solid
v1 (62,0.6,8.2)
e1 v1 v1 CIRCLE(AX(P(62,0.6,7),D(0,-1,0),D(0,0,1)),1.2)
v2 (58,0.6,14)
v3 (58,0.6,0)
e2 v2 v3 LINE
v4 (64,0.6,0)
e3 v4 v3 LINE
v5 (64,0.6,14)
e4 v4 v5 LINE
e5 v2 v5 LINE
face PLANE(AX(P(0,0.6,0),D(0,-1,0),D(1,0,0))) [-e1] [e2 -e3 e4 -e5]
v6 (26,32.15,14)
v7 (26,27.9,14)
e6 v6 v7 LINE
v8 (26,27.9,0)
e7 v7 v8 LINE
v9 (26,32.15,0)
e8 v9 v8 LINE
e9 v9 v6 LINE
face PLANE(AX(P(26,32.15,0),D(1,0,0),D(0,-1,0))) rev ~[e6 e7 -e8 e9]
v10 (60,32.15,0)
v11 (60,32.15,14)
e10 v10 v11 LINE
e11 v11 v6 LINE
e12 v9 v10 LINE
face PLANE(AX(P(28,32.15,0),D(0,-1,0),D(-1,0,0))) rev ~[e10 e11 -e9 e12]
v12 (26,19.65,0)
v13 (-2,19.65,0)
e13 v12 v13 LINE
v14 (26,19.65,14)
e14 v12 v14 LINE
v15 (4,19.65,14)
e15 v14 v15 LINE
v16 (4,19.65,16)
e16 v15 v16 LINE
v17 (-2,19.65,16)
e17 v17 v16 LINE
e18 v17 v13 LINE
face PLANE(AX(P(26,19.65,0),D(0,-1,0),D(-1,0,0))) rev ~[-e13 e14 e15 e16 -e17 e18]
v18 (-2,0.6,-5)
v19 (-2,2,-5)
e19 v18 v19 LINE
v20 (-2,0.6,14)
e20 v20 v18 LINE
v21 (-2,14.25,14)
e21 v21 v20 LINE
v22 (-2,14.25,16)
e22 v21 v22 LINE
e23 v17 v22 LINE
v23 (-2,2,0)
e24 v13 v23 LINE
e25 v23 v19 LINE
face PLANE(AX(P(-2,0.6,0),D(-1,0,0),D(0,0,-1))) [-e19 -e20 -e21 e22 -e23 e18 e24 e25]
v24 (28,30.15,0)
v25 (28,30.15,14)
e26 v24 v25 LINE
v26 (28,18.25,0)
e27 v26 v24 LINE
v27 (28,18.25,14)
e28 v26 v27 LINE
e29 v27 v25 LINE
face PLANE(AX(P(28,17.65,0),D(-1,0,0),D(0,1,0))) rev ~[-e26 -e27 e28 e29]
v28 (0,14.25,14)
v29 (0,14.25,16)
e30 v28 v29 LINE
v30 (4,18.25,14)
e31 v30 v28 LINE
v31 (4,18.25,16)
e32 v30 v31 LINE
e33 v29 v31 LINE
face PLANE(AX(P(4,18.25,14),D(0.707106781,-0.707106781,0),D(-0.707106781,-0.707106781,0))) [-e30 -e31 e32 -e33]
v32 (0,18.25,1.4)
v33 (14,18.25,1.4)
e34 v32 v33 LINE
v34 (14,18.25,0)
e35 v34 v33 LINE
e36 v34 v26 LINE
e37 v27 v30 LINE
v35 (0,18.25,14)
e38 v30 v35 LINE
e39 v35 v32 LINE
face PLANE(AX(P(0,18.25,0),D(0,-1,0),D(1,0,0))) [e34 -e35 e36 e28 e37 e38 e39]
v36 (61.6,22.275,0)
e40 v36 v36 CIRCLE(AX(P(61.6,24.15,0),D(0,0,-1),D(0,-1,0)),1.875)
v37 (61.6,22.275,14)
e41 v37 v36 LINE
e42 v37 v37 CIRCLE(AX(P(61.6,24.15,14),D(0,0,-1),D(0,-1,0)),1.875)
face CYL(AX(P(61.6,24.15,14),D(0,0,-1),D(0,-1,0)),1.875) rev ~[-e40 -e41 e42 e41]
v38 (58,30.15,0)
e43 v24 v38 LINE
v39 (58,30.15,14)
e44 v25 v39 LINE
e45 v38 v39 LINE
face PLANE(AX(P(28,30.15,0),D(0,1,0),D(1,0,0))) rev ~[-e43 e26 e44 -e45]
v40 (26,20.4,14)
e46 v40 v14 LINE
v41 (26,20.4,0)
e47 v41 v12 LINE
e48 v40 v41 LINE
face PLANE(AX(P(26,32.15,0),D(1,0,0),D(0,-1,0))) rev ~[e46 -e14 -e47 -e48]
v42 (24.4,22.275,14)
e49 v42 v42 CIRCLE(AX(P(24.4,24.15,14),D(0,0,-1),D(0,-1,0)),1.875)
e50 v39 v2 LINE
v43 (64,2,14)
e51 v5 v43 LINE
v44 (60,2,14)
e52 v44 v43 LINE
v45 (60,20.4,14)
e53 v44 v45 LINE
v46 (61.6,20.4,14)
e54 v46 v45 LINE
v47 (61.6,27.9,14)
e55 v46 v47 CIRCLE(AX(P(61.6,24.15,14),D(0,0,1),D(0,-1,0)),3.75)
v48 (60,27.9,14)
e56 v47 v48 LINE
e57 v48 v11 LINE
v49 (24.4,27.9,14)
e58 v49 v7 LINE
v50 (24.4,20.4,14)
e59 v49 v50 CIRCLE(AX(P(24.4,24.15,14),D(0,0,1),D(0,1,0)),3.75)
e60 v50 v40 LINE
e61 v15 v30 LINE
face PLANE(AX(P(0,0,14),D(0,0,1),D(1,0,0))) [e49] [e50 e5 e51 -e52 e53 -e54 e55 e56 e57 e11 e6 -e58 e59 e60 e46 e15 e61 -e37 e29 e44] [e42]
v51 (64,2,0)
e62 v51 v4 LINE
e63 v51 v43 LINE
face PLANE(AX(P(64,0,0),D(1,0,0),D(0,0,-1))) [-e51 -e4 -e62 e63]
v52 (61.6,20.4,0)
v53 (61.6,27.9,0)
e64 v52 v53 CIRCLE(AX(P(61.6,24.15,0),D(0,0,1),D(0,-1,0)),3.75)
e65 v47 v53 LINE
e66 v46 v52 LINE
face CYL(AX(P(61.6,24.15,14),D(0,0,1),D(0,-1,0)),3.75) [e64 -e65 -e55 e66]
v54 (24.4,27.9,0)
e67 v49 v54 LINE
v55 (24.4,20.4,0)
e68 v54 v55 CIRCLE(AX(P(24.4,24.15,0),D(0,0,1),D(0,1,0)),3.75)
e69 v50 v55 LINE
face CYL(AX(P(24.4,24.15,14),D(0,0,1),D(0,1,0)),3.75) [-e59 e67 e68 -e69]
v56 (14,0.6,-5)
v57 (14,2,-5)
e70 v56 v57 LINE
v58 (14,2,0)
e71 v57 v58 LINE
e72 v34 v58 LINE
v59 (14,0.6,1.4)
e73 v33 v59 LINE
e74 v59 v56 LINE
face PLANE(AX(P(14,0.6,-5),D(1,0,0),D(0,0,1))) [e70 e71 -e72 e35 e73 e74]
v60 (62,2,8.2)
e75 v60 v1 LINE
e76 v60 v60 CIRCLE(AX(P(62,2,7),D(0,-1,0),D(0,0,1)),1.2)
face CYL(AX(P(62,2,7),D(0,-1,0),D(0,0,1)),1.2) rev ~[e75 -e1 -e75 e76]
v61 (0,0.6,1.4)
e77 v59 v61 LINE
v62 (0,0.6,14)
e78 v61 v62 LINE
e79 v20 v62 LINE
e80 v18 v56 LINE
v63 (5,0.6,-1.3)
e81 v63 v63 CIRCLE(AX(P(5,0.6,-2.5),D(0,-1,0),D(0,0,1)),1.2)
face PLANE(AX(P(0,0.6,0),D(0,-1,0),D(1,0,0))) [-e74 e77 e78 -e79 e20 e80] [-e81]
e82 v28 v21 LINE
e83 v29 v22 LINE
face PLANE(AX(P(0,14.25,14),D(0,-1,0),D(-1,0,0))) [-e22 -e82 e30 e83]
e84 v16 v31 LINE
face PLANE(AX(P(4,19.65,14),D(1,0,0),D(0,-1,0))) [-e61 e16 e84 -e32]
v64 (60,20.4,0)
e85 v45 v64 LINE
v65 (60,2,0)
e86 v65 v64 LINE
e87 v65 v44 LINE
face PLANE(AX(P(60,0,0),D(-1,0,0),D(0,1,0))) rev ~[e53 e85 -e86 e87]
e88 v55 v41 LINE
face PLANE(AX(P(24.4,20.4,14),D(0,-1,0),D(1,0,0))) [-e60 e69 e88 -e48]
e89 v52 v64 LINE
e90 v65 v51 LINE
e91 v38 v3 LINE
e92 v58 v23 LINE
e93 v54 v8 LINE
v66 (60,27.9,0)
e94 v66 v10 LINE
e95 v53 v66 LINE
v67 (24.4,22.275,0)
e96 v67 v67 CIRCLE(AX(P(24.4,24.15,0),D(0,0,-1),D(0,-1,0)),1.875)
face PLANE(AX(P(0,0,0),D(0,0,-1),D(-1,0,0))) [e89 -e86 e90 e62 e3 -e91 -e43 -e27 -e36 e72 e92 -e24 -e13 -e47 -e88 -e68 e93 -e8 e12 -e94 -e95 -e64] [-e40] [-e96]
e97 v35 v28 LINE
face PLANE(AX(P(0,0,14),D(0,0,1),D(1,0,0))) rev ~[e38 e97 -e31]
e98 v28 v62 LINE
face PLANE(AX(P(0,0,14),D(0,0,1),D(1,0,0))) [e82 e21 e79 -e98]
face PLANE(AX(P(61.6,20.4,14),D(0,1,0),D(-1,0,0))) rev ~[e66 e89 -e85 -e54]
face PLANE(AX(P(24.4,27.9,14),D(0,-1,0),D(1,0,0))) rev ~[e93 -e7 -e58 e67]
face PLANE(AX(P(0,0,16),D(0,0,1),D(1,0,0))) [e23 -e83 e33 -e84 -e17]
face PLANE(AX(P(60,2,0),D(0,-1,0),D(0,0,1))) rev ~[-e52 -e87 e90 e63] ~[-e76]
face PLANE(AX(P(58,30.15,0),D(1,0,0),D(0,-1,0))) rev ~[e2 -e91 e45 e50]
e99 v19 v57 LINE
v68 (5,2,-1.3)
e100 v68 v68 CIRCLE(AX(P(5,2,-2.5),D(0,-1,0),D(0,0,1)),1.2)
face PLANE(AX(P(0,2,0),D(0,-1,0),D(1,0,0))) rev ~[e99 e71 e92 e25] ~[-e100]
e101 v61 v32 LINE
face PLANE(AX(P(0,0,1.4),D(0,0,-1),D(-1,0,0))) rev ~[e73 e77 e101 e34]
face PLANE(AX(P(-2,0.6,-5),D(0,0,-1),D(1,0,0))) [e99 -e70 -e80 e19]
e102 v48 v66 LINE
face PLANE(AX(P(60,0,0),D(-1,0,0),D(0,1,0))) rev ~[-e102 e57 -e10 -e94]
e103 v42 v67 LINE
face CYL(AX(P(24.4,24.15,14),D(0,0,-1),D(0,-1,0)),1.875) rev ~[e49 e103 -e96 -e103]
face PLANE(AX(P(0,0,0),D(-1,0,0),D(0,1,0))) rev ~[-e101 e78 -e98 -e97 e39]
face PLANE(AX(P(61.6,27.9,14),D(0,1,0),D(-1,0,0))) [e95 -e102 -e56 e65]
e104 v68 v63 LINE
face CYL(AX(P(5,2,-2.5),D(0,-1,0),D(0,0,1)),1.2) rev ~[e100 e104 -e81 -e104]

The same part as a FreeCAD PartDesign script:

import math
import FreeCAD as App
import Part
import Sketcher
Q = App.Units.Quantity


def add_polygon(sketch, points):
    """Adds a closed chain of lines whose ends are joined by coincident constraints."""
    first, n = sketch.GeometryCount, len(points)
    for a, b in zip(points, points[1:] + points[:1]):
        sketch.addGeometry(Part.LineSegment(App.Vector(*a, 0), App.Vector(*b, 0)), False)
    for i in range(n):
        sketch.addConstraint(Sketcher.Constraint("Coincident", first + i, 2, first + (i + 1) % n, 1))

doc = App.newDocument("Part")
body = doc.addObject("PartDesign::Body", "Body")

sketch1 = doc.addObject("Sketcher::SketchObject", "Sketch")
body.addObject(sketch1)
sketch1.AttachmentSupport = (doc.XY_Plane, [""])
sketch1.MapMode = "FlatFace"
add_polygon(sketch1, [(-2, 0), (0, 0), (0, 17.65), (28, 17.65), (28, 30.15), (58, 30.15), (58, 0), (60, 0), (60, 32.15), (26, 32.15), (26, 19.65), (-2, 19.65)])
sketch1.addConstraint([
    Sketcher.Constraint("Horizontal", 0),
    Sketcher.Constraint("Vertical", 1),
    Sketcher.Constraint("Horizontal", 2),
    Sketcher.Constraint("Vertical", 3),
    Sketcher.Constraint("Horizontal", 4),
    Sketcher.Constraint("Vertical", 5),
    Sketcher.Constraint("Horizontal", 6),
    Sketcher.Constraint("Vertical", 7),
    Sketcher.Constraint("Horizontal", 8),
    Sketcher.Constraint("Vertical", 9),
    Sketcher.Constraint("Horizontal", 10),
    Sketcher.Constraint("Vertical", 11),
    Sketcher.Constraint("Coincident", 0, 2, -1, 1),
    Sketcher.Constraint("PointOnObject", 5, 2, -1),
    Sketcher.Constraint("Equal", 0, 6),
    Sketcher.Constraint("Equal", 2, 10),
    Sketcher.Constraint("Equal", 3, 9),
    Sketcher.Constraint("DistanceX", 0, 1, 0, 2, 2.0),
    Sketcher.Constraint("DistanceX", 2, 1, 2, 2, 28.0),
    Sketcher.Constraint("DistanceX", 4, 1, 4, 2, 30.0),
    Sketcher.Constraint("DistanceY", 3, 1, 3, 2, 12.5),
    Sketcher.Constraint("DistanceY", 4, 2, 7, 2, 2.0),
    Sketcher.Constraint("DistanceY", 1, 1, 1, 2, 17.65),
])
pad1 = doc.addObject("PartDesign::Pad", "Pad")
body.addObject(pad1)
pad1.Profile = sketch1
pad1.Length = 14

sketch2 = doc.addObject("Sketcher::SketchObject", "Sketch001")
body.addObject(sketch2)
sketch2.AttachmentSupport = (doc.YZ_Plane, [""])
sketch2.MapMode = "FlatFace"
sketch2.AttachmentOffset = App.Placement(App.Vector(0, 0, 60), App.Rotation())
add_polygon(sketch2, [(0, 14), (0, 0), (2, 0), (2, 14)])
sketch2.addConstraint([
    Sketcher.Constraint("Vertical", 0),
    Sketcher.Constraint("Horizontal", 1),
    Sketcher.Constraint("Vertical", 2),
    Sketcher.Constraint("Horizontal", 3),
    Sketcher.Constraint("Coincident", 0, 2, -1, 1),
    Sketcher.Constraint("DistanceX", 1, 1, 1, 2, 2.0),
    Sketcher.Constraint("DistanceY", 0, 2, 0, 1, 14.0),
])
pad2 = doc.addObject("PartDesign::Pad", "Pad001")
body.addObject(pad2)
pad2.Profile = sketch2
pad2.Length = 7

sketch3 = doc.addObject("Sketcher::SketchObject", "Sketch002")
body.addObject(sketch3)
sketch3.AttachmentSupport = (doc.XY_Plane, [""])
sketch3.MapMode = "FlatFace"
sketch3.AttachmentOffset = App.Placement(App.Vector(0, 0, 14), App.Rotation())
sketch3.addGeometry([
    Part.LineSegment(App.Vector(61.6, 27.9, 0), App.Vector(60, 27.9, 0)),
    Part.LineSegment(App.Vector(60, 27.9, 0), App.Vector(60, 20.4, 0)),
    Part.LineSegment(App.Vector(60, 20.4, 0), App.Vector(61.6, 20.4, 0)),
    Part.ArcOfCircle(Part.Circle(App.Vector(61.6, 24.15, 0), App.Vector(0, 0, 1), 3.75), math.radians(-90), math.radians(90)),
], False)
sketch3.addConstraint([
    Sketcher.Constraint("Coincident", 0, 2, 1, 1),
    Sketcher.Constraint("Coincident", 1, 2, 2, 1),
    Sketcher.Constraint("Tangent", 2, 2, 3, 1),
    Sketcher.Constraint("Tangent", 3, 2, 0, 1),
    Sketcher.Constraint("Horizontal", 0),
    Sketcher.Constraint("Vertical", 1),
    Sketcher.Constraint("Horizontal", 2),
    Sketcher.Constraint("Radius", 3, 3.75),
    Sketcher.Constraint("DistanceX", 0, 2, 0, 1, 1.6),
    Sketcher.Constraint("DistanceX", -1, 1, 0, 2, 60.0),
    Sketcher.Constraint("DistanceY", -1, 1, 0, 2, 27.9),
])
pad3 = doc.addObject("PartDesign::Pad", "Pad002")
body.addObject(pad3)
pad3.Profile = sketch3
pad3.Length = 14
pad3.Reversed = True

sketch4 = doc.addObject("Sketcher::SketchObject", "Sketch003")
body.addObject(sketch4)
sketch4.AttachmentSupport = (doc.XY_Plane, [""])
sketch4.MapMode = "FlatFace"
sketch4.AttachmentOffset = App.Placement(App.Vector(0, 0, 14), App.Rotation())
sketch4.addGeometry(Part.Circle(App.Vector(61.6, 24.15, 0), App.Vector(0, 0, 1), 1.875), False)
sketch4.addConstraint([
    Sketcher.Constraint("Diameter", 0, 3.75),
    Sketcher.Constraint("DistanceX", -1, 1, 0, 3, 61.6),
    Sketcher.Constraint("DistanceY", -1, 1, 0, 3, 24.15),
])
doc.recompute()
hole = doc.addObject("PartDesign::Hole", "Hole")
body.addObject(hole)
hole.Profile = sketch4
hole.ThreadType = "None"
hole.Diameter = 3.75
hole.DepthType = "ThroughAll"

sketch5 = doc.addObject("Sketcher::SketchObject", "Sketch004")
body.addObject(sketch5)
sketch5.AttachmentSupport = (doc.XY_Plane, [""])
sketch5.MapMode = "FlatFace"
sketch5.AttachmentOffset = App.Placement(App.Vector(0, 0, 14), App.Rotation())
sketch5.addGeometry([
    Part.LineSegment(App.Vector(26, 27.9, 0), App.Vector(24.4, 27.9, 0)),
    Part.ArcOfCircle(Part.Circle(App.Vector(24.4, 24.15, 0), App.Vector(0, 0, 1), 3.75), math.radians(90), math.radians(270)),
    Part.LineSegment(App.Vector(24.4, 20.4, 0), App.Vector(26, 20.4, 0)),
    Part.LineSegment(App.Vector(26, 20.4, 0), App.Vector(26, 27.9, 0)),
], False)
sketch5.addConstraint([
    Sketcher.Constraint("Tangent", 0, 2, 1, 1),
    Sketcher.Constraint("Tangent", 1, 2, 2, 1),
    Sketcher.Constraint("Coincident", 2, 2, 3, 1),
    Sketcher.Constraint("Coincident", 3, 2, 0, 1),
    Sketcher.Constraint("Horizontal", 0),
    Sketcher.Constraint("Horizontal", 2),
    Sketcher.Constraint("Vertical", 3),
    Sketcher.Constraint("Radius", 1, 3.75),
    Sketcher.Constraint("DistanceX", 0, 2, 0, 1, 1.6),
    Sketcher.Constraint("DistanceX", -1, 1, 2, 2, 26.0),
    Sketcher.Constraint("DistanceY", -1, 1, 0, 2, 27.9),
])
pad4 = doc.addObject("PartDesign::Pad", "Pad003")
body.addObject(pad4)
pad4.Profile = sketch5
pad4.Length = 14
pad4.Reversed = True

sketch6 = doc.addObject("Sketcher::SketchObject", "Sketch005")
body.addObject(sketch6)
sketch6.AttachmentSupport = (doc.XY_Plane, [""])
sketch6.MapMode = "FlatFace"
sketch6.AttachmentOffset = App.Placement(App.Vector(0, 0, 14), App.Rotation())
sketch6.addGeometry(Part.Circle(App.Vector(24.4, 24.15, 0), App.Vector(0, 0, 1), 1.875), False)
sketch6.addConstraint([
    Sketcher.Constraint("Diameter", 0, 3.75),
    Sketcher.Constraint("DistanceX", -1, 1, 0, 3, 24.4),
    Sketcher.Constraint("DistanceY", -1, 1, 0, 3, 24.15),
])
doc.recompute()
hole2 = doc.addObject("PartDesign::Hole", "Hole001")
body.addObject(hole2)
hole2.Profile = sketch6
hole2.ThreadType = "None"
hole2.Diameter = 3.75
hole2.DepthType = "ThroughAll"

sketch7 = doc.addObject("Sketcher::SketchObject", "Sketch006")
body.addObject(sketch7)
sketch7.AttachmentSupport = (doc.XZ_Plane, [""])
sketch7.MapMode = "FlatFace"
sketch7.AttachmentOffset = App.Placement(App.Vector(0, 0, -17.65), App.Rotation())
add_polygon(sketch7, [(0, 14), (0, 0), (28, 0), (28, 14)])
sketch7.addConstraint([
    Sketcher.Constraint("Vertical", 0),
    Sketcher.Constraint("Horizontal", 1),
    Sketcher.Constraint("Vertical", 2),
    Sketcher.Constraint("Horizontal", 3),
    Sketcher.Constraint("Coincident", 0, 2, -1, 1),
    Sketcher.Constraint("DistanceX", 1, 1, 1, 2, 28.0),
    Sketcher.Constraint("DistanceY", 0, 2, 0, 1, 14.0),
])
pocket1 = doc.addObject("PartDesign::Pocket", "Pocket")
body.addObject(pocket1)
pocket1.Profile = sketch7
pocket1.Length = 0.6

sketch8 = doc.addObject("Sketcher::SketchObject", "Sketch007")
body.addObject(sketch8)
sketch8.AttachmentSupport = (doc.XZ_Plane, [""])
sketch8.MapMode = "FlatFace"
add_polygon(sketch8, [(67, 14), (-9, 14), (-9, 0), (67, 0)])
sketch8.addConstraint([
    Sketcher.Constraint("Horizontal", 0),
    Sketcher.Constraint("Vertical", 1),
    Sketcher.Constraint("Horizontal", 2),
    Sketcher.Constraint("Vertical", 3),
    Sketcher.Constraint("PointOnObject", 1, 2, -1),
    Sketcher.Constraint("DistanceX", 0, 2, 0, 1, 76.0),
    Sketcher.Constraint("DistanceY", 1, 2, 1, 1, 14.0),
    Sketcher.Constraint("DistanceX", 0, 2, -1, 1, 9.0),
])
pocket2 = doc.addObject("PartDesign::Pocket", "Pocket001")
body.addObject(pocket2)
pocket2.Profile = sketch8
pocket2.Length = 0.6

sketch9 = doc.addObject("Sketcher::SketchObject", "Sketch008")
body.addObject(sketch9)
sketch9.AttachmentSupport = (doc.XY_Plane, [""])
sketch9.MapMode = "FlatFace"
sketch9.AttachmentOffset = App.Placement(App.Vector(0, 0, 14), App.Rotation())
add_polygon(sketch9, [(4, 19.65), (-2, 19.65), (-2, 14.25), (0, 14.25), (4, 18.25)])
sketch9.addConstraint([
    Sketcher.Constraint("Horizontal", 0),
    Sketcher.Constraint("Vertical", 1),
    Sketcher.Constraint("Horizontal", 2),
    Sketcher.Constraint("Vertical", 4),
    Sketcher.Constraint("PointOnObject", 2, 2, -2),
    Sketcher.Constraint("DistanceX", 0, 2, 0, 1, 6.0),
    Sketcher.Constraint("DistanceX", 2, 1, 2, 2, 2.0),
    Sketcher.Constraint("Angle", 3, Q("45 deg")),
    Sketcher.Constraint("DistanceY", 1, 2, 1, 1, 5.4),
    Sketcher.Constraint("DistanceY", -1, 1, 0, 2, 19.65),
])
pad5 = doc.addObject("PartDesign::Pad", "Pad004")
body.addObject(pad5)
pad5.Profile = sketch9
pad5.Length = 2

sketch10 = doc.addObject("Sketcher::SketchObject", "Sketch009")
body.addObject(sketch10)
sketch10.AttachmentSupport = (doc.XY_Plane, [""])
sketch10.MapMode = "FlatFace"
add_polygon(sketch10, [(14, 0.6), (0, 0.6), (0, 18.25), (14, 18.25)])
sketch10.addConstraint([
    Sketcher.Constraint("Horizontal", 0),
    Sketcher.Constraint("Vertical", 1),
    Sketcher.Constraint("Horizontal", 2),
    Sketcher.Constraint("Vertical", 3),
    Sketcher.Constraint("PointOnObject", 0, 2, -2),
    Sketcher.Constraint("DistanceX", 0, 2, 0, 1, 14.0),
    Sketcher.Constraint("DistanceY", 1, 1, 1, 2, 17.65),
    Sketcher.Constraint("DistanceY", -1, 1, 0, 2, 0.6),
])
pad6 = doc.addObject("PartDesign::Pad", "Pad005")
body.addObject(pad6)
pad6.Profile = sketch10
pad6.Length = 1.4

sketch11 = doc.addObject("Sketcher::SketchObject", "Sketch010")
body.addObject(sketch11)
sketch11.AttachmentSupport = (doc.YZ_Plane, [""])
sketch11.MapMode = "FlatFace"
sketch11.AttachmentOffset = App.Placement(App.Vector(0, 0, 67), App.Rotation())
add_polygon(sketch11, [(0.6, 14), (0.6, 0), (9.5309, 0), (9.5309, 14)])
sketch11.addConstraint([
    Sketcher.Constraint("Vertical", 0),
    Sketcher.Constraint("Horizontal", 1),
    Sketcher.Constraint("Vertical", 2),
    Sketcher.Constraint("Horizontal", 3),
    Sketcher.Constraint("PointOnObject", 0, 2, -1),
    Sketcher.Constraint("DistanceY", 0, 2, 0, 1, 14.0),
    Sketcher.Constraint("DistanceX", -1, 1, 0, 2, 0.6),
    Sketcher.Constraint("DistanceX", 1, 1, 1, 2, 8.931),
])
pocket3 = doc.addObject("PartDesign::Pocket", "Pocket002")
body.addObject(pocket3)
pocket3.Profile = sketch11
pocket3.Length = 3

sketch12 = doc.addObject("Sketcher::SketchObject", "Sketch011")
body.addObject(sketch12)
sketch12.AttachmentSupport = (doc.YZ_Plane, [""])
sketch12.MapMode = "FlatFace"
sketch12.AttachmentOffset = App.Placement(App.Vector(0, 0, -9), App.Rotation())
add_polygon(sketch12, [(6.5, 0), (0.6, 0), (0.6, 14), (6.5, 14)])
sketch12.addConstraint([
    Sketcher.Constraint("Horizontal", 0),
    Sketcher.Constraint("Vertical", 1),
    Sketcher.Constraint("Horizontal", 2),
    Sketcher.Constraint("Vertical", 3),
    Sketcher.Constraint("PointOnObject", 0, 2, -1),
    Sketcher.Constraint("DistanceY", 1, 1, 1, 2, 14.0),
    Sketcher.Constraint("DistanceX", 0, 2, 0, 1, 5.9),
    Sketcher.Constraint("DistanceX", -1, 1, 0, 2, 0.6),
])
pocket4 = doc.addObject("PartDesign::Pocket", "Pocket003")
body.addObject(pocket4)
pocket4.Profile = sketch12
pocket4.Length = 3
pocket4.Reversed = True

sketch13 = doc.addObject("Sketcher::SketchObject", "Sketch012")
body.addObject(sketch13)
sketch13.AttachmentSupport = (doc.XZ_Plane, [""])
sketch13.MapMode = "FlatFace"
sketch13.AttachmentOffset = App.Placement(App.Vector(0, 0, -2), App.Rotation())
sketch13.addGeometry(Part.Circle(App.Vector(62, 7, 0), App.Vector(0, 0, 1), 1.2), False)
sketch13.addConstraint([
    Sketcher.Constraint("Diameter", 0, 2.4),
    Sketcher.Constraint("DistanceX", -1, 1, 0, 3, 62.0),
    Sketcher.Constraint("DistanceY", -1, 1, 0, 3, 7.0),
])
doc.recompute()
hole3 = doc.addObject("PartDesign::Hole", "Hole002")
body.addObject(hole3)
hole3.Profile = sketch13
hole3.ThreadType = "None"
hole3.Diameter = 2.4
hole3.DepthType = "ThroughAll"
hole3.Reversed = True

sketch14 = doc.addObject("Sketcher::SketchObject", "Sketch013")
body.addObject(sketch14)
sketch14.AttachmentSupport = (doc.XZ_Plane, [""])
sketch14.MapMode = "FlatFace"
sketch14.AttachmentOffset = App.Placement(App.Vector(0, 0, -0.6), App.Rotation())
add_polygon(sketch14, [(14, -5), (14, 0), (-2, 0), (-2, -5)])
sketch14.addConstraint([
    Sketcher.Constraint("Vertical", 0),
    Sketcher.Constraint("Horizontal", 1),
    Sketcher.Constraint("Vertical", 2),
    Sketcher.Constraint("Horizontal", 3),
    Sketcher.Constraint("PointOnObject", 0, 2, -1),
    Sketcher.Constraint("DistanceY", 0, 1, 0, 2, 5.0),
    Sketcher.Constraint("DistanceX", 1, 2, 1, 1, 16.0),
    Sketcher.Constraint("DistanceX", -1, 1, 0, 2, 14.0),
])
pad7 = doc.addObject("PartDesign::Pad", "Pad006")
body.addObject(pad7)
pad7.Profile = sketch14
pad7.Length = 1.4
pad7.Reversed = True

sketch15 = doc.addObject("Sketcher::SketchObject", "Sketch014")
body.addObject(sketch15)
sketch15.AttachmentSupport = (doc.XZ_Plane, [""])
sketch15.MapMode = "FlatFace"
sketch15.AttachmentOffset = App.Placement(App.Vector(0, 0, -2), App.Rotation())
sketch15.addGeometry(Part.Circle(App.Vector(5, -2.5, 0), App.Vector(0, 0, 1), 1.2), False)
sketch15.addConstraint([
    Sketcher.Constraint("Diameter", 0, 2.4),
    Sketcher.Constraint("DistanceX", -1, 1, 0, 3, 5.0),
    Sketcher.Constraint("DistanceY", 0, 3, -1, 1, 2.5),
])
doc.recompute()
hole4 = doc.addObject("PartDesign::Hole", "Hole003")
body.addObject(hole4)
hole4.Profile = sketch15
hole4.ThreadType = "None"
hole4.Diameter = 2.4
hole4.DepthType = "ThroughAll"
hole4.Reversed = True

doc.recompute()
